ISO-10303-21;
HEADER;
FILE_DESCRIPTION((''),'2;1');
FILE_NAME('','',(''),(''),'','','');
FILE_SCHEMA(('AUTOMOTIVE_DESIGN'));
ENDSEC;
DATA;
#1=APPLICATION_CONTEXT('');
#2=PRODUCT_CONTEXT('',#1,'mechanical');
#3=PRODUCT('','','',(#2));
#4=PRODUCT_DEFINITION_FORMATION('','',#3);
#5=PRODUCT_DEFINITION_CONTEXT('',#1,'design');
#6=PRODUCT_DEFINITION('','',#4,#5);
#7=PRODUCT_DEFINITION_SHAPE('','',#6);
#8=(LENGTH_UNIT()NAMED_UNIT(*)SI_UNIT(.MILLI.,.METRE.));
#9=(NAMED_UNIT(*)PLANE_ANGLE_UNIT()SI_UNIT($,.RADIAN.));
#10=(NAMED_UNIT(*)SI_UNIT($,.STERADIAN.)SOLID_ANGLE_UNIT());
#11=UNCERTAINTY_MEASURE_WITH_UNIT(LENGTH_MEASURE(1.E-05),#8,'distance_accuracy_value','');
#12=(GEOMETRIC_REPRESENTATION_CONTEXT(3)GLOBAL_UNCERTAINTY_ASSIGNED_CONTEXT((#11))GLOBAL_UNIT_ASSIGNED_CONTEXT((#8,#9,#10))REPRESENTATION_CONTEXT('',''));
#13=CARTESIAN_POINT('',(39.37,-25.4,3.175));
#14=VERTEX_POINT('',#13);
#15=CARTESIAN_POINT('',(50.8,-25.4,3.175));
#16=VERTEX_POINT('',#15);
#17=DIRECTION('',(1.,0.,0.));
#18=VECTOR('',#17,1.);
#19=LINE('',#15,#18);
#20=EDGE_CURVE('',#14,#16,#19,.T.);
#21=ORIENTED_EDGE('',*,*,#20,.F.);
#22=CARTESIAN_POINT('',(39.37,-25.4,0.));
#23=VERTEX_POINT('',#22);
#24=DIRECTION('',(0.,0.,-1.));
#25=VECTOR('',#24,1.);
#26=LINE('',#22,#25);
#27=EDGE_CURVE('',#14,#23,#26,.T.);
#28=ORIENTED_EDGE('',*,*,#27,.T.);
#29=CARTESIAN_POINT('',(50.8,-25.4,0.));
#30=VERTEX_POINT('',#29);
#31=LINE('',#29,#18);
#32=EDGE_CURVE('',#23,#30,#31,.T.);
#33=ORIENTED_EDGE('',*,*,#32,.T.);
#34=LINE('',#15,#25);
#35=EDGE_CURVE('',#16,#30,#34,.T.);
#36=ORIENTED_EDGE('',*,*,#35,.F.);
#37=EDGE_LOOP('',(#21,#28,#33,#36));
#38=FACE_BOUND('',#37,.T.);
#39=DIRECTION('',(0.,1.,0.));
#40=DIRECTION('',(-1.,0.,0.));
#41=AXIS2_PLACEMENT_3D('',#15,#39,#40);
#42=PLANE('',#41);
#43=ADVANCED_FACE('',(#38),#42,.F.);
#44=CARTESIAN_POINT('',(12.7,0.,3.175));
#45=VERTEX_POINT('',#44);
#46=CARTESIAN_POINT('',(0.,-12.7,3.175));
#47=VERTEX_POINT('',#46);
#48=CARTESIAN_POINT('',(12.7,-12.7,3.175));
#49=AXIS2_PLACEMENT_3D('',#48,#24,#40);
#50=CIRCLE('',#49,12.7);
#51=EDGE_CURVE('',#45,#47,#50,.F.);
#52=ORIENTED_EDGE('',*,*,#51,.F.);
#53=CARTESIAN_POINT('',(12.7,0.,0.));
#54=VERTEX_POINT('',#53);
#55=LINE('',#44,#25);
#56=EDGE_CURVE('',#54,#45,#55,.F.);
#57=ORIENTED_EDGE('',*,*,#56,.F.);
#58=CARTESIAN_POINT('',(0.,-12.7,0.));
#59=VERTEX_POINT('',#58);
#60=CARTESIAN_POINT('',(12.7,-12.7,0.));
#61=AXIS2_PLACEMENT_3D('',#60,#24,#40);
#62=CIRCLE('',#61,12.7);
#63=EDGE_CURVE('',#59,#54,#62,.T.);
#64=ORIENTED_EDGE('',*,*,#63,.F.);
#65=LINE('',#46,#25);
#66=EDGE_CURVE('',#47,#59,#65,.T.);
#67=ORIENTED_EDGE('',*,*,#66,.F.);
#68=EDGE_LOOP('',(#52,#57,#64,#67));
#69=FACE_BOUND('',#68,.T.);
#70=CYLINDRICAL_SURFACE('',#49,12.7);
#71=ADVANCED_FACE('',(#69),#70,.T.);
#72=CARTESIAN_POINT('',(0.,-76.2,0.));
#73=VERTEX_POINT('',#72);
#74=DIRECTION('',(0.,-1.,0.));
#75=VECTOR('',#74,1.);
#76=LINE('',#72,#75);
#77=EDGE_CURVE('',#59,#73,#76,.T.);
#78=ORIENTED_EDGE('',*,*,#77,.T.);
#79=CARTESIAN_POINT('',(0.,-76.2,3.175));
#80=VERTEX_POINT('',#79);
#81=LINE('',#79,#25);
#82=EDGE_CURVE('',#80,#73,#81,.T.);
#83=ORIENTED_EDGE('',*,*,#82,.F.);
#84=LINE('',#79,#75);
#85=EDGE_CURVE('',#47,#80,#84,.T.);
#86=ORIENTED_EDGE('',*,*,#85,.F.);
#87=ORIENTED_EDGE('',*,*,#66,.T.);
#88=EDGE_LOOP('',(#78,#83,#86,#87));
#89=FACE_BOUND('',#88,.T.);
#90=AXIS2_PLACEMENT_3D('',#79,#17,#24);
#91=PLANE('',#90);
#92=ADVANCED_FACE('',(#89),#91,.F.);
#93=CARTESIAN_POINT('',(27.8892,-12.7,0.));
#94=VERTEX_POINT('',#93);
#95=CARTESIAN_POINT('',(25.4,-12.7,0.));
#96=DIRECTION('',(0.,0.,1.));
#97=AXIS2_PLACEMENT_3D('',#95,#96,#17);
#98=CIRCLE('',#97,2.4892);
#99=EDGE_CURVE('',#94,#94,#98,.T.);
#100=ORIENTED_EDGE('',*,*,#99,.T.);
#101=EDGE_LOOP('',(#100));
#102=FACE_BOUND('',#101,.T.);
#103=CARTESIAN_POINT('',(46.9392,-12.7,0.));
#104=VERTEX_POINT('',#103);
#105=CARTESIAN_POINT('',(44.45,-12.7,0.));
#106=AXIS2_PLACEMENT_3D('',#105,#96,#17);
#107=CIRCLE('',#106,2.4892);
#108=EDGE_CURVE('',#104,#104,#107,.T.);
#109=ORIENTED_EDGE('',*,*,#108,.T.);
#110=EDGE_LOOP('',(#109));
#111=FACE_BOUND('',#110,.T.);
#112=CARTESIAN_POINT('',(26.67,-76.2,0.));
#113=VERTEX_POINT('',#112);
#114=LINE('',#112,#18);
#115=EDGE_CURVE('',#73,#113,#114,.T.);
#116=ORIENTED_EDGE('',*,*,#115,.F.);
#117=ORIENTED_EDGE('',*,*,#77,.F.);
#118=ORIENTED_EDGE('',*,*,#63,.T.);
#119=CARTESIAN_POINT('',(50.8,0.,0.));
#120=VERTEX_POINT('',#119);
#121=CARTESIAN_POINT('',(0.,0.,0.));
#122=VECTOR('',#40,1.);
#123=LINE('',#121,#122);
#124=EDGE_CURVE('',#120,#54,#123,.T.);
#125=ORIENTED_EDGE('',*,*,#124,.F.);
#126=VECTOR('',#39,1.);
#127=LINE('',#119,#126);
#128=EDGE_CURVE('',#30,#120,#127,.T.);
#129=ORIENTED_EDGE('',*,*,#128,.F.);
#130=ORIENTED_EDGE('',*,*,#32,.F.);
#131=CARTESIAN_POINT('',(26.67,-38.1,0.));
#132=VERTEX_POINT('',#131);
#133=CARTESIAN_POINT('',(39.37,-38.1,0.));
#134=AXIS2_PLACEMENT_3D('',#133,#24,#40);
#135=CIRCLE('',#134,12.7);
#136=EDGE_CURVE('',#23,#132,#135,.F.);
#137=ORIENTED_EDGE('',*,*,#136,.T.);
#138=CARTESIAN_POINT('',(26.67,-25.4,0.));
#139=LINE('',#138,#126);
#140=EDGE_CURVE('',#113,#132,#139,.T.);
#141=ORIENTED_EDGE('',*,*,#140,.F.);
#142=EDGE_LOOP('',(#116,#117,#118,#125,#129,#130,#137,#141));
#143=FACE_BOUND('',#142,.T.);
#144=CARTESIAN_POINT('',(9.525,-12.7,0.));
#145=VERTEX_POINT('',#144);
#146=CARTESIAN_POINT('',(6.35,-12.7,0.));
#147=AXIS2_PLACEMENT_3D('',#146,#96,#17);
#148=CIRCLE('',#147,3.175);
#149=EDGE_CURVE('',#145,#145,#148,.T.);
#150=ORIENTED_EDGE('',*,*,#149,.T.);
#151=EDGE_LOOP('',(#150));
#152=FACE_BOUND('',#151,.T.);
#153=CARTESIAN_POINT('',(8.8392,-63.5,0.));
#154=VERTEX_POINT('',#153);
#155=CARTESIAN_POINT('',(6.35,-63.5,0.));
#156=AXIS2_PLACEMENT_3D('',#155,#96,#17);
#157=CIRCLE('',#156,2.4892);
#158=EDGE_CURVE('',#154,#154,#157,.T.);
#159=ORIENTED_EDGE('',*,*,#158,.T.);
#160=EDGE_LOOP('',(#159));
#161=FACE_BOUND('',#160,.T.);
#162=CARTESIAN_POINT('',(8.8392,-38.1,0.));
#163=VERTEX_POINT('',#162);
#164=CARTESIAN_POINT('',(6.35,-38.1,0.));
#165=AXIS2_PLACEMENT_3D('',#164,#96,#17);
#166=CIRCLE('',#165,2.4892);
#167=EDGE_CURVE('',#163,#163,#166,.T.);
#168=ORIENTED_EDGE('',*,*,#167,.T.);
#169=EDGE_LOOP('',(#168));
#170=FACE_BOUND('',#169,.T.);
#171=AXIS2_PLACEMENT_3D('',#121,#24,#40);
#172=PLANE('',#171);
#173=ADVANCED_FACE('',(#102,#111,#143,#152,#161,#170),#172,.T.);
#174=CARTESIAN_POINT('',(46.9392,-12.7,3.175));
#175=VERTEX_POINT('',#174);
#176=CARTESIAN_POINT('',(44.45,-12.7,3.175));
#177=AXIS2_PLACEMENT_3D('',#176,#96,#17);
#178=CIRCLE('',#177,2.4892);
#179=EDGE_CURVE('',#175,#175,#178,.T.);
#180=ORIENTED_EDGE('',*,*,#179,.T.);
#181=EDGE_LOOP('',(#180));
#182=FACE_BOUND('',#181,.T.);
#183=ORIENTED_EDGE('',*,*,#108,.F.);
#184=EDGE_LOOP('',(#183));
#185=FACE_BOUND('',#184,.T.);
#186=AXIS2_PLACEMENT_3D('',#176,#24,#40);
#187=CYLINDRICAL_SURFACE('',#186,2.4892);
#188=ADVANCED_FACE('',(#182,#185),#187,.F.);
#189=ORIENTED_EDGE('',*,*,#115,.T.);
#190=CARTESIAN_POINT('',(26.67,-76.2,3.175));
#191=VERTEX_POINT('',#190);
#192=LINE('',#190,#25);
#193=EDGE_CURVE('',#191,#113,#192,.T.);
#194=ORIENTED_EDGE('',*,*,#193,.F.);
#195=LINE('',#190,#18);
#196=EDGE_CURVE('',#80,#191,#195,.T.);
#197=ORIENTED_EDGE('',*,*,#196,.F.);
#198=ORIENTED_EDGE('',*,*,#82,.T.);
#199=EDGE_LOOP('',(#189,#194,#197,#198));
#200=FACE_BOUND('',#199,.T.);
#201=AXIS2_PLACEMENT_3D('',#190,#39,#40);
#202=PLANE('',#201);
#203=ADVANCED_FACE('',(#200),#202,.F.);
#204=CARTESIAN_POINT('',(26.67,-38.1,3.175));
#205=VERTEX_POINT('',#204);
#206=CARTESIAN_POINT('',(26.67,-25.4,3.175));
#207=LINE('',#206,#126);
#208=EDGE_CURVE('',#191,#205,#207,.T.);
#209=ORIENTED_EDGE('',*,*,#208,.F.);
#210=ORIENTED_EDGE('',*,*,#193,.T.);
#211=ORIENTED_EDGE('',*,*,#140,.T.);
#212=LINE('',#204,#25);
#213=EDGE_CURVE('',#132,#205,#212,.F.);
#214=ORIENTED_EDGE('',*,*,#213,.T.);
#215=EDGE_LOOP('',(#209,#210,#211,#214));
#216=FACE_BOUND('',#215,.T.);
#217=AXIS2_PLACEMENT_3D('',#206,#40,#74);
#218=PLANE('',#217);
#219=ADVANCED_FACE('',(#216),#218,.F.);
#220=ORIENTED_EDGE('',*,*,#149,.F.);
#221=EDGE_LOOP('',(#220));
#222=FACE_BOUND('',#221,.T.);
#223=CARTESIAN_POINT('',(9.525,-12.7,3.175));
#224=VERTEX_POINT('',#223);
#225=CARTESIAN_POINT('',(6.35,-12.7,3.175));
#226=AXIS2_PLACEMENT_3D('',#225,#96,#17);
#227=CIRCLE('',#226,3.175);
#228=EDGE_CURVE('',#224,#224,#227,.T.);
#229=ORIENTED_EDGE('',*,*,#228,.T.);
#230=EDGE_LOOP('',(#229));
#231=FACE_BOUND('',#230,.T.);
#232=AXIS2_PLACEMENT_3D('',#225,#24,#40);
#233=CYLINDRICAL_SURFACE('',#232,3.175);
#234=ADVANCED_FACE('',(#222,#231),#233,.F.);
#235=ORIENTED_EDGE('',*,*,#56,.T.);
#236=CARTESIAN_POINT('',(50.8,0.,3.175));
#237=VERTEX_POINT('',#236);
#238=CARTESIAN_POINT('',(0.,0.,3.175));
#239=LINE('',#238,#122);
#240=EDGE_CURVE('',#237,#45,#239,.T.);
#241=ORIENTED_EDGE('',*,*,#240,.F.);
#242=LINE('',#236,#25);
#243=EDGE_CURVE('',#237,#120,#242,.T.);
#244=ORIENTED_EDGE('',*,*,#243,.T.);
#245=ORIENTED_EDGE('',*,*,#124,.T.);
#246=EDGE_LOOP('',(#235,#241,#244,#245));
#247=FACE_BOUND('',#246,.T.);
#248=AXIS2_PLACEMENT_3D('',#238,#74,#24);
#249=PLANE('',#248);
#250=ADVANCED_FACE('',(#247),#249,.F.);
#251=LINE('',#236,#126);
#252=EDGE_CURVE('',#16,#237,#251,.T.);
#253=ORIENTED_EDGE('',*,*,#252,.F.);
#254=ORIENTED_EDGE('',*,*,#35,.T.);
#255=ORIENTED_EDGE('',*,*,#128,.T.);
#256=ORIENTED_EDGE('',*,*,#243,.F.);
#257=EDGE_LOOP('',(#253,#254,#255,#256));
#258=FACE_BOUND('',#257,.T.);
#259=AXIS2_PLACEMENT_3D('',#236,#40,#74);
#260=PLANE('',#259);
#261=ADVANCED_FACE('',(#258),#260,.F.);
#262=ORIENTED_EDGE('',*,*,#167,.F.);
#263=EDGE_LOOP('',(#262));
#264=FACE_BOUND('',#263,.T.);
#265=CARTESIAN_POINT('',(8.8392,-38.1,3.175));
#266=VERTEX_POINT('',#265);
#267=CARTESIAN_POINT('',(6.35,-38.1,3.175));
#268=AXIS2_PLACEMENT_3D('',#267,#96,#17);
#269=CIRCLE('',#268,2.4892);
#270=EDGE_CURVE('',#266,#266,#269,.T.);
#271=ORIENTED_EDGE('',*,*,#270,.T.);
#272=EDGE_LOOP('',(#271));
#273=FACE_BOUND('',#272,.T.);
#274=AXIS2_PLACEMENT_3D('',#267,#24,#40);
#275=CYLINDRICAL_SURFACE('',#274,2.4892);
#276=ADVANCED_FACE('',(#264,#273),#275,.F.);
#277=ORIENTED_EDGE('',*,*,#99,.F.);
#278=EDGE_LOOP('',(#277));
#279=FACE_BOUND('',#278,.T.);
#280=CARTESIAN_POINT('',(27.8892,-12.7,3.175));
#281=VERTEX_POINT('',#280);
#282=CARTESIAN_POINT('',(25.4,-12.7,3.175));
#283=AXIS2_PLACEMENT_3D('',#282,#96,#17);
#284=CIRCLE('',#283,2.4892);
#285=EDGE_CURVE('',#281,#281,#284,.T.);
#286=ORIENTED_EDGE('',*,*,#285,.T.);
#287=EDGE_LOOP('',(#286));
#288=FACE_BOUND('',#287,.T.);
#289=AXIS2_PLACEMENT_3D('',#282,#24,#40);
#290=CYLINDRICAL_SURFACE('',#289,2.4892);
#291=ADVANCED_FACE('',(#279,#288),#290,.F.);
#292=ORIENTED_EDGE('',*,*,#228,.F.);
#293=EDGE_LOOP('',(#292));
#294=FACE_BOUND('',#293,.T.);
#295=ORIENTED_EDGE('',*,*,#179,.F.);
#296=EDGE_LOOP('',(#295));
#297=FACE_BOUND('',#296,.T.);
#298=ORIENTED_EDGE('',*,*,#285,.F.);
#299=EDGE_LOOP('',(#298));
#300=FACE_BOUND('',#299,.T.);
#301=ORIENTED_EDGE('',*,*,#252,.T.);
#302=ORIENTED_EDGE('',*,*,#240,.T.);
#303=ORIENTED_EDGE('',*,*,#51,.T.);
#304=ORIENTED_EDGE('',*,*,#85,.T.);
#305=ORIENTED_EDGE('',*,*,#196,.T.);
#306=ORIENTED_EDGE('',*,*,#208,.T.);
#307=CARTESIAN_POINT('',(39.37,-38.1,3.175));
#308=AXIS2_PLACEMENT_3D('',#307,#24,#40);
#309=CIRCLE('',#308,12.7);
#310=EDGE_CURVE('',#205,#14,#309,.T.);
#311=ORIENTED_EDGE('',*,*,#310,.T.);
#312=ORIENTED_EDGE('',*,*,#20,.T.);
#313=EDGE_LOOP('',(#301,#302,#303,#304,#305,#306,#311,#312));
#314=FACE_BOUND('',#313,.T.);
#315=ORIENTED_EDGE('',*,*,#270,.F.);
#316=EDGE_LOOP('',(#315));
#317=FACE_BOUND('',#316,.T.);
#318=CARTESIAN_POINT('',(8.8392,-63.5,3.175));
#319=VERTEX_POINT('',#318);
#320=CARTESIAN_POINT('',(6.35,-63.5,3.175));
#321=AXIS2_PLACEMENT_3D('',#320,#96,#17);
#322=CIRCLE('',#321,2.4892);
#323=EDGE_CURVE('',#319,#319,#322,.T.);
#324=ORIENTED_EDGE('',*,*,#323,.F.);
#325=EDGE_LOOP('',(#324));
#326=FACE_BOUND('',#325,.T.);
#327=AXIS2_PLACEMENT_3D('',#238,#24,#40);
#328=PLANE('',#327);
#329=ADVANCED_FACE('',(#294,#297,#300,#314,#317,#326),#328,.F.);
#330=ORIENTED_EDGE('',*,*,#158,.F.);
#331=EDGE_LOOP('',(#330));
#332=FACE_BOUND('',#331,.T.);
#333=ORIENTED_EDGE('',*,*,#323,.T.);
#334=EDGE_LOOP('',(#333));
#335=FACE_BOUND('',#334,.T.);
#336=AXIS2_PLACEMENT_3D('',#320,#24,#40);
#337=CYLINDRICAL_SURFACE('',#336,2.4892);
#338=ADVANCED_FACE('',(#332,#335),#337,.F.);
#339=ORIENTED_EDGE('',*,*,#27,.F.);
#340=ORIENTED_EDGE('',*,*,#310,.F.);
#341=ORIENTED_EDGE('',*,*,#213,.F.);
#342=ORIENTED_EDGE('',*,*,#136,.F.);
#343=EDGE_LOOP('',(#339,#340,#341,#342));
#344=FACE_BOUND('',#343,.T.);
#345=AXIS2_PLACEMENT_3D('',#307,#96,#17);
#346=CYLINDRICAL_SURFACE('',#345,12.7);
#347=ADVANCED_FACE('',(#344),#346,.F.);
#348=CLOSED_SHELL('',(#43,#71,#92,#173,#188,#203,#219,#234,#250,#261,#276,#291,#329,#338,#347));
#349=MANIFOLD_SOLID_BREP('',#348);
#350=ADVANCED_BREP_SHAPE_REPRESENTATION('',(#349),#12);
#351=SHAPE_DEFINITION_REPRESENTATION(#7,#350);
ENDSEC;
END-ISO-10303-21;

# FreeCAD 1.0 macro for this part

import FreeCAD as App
import Part
import Sketcher

V = App.Vector
Q = App.Units.Quantity


def edges_at(feature, points):
    """Names of the edges that pass closest to the given points."""
    edges = feature.Shape.Edges
    near = lambda p: min(range(len(edges)), key=lambda i: edges[i].distToShape(Part.Vertex(*p))[0])
    return sorted({f"Edge{near(p) + 1}" for p in points})

doc = App.newDocument("Part")
body = doc.addObject("PartDesign::Body", "Body")

# Sketch on XY plane
sketch1 = body.newObject("Sketcher::SketchObject", "Sketch")
sketch1.AttachmentSupport = (doc.getObject("XY_Plane"), [""])
sketch1.MapMode = "FlatFace"
sketch1.addGeometry([
    Part.LineSegment(V(50.8, 0, 0), V(0, 0, 0)),  # 0
    Part.LineSegment(V(0, 0, 0), V(0, -76.2, 0)),  # 1
    Part.LineSegment(V(0, -76.2, 0), V(26.67, -76.2, 0)),  # 2
    Part.LineSegment(V(26.67, -76.2, 0), V(26.67, -25.4, 0)),  # 3
    Part.LineSegment(V(26.67, -25.4, 0), V(50.8, -25.4, 0)),  # 4
    Part.LineSegment(V(50.8, -25.4, 0), V(50.8, 0, 0)),  # 5
    Part.Circle(V(6.35, -63.5, 0), V(0, 0, 1), 2.4892),  # 6
    Part.Circle(V(6.35, -38.1, 0), V(0, 0, 1), 2.4892),  # 7
    Part.Circle(V(44.45, -12.7, 0), V(0, 0, 1), 2.4892),  # 8
    Part.Circle(V(25.4, -12.7, 0), V(0, 0, 1), 2.4892),  # 9
    Part.Circle(V(6.35, -12.7, 0), V(0, 0, 1), 3.175),  # 10
], False)
sketch1.addConstraint([
    Sketcher.Constraint("Coincident", 0, 2, 1, 1),
    Sketcher.Constraint("Coincident", 1, 2, 2, 1),
    Sketcher.Constraint("Coincident", 2, 2, 3, 1),
    Sketcher.Constraint("Coincident", 3, 2, 4, 1),
    Sketcher.Constraint("Coincident", 4, 2, 5, 1),
    Sketcher.Constraint("Coincident", 5, 2, 0, 1),
    Sketcher.Constraint("Horizontal", 0),
    Sketcher.Constraint("Vertical", 1),
    Sketcher.Constraint("Horizontal", 2),
    Sketcher.Constraint("Vertical", 3),
    Sketcher.Constraint("Horizontal", 4),
    Sketcher.Constraint("Vertical", 5),
    Sketcher.Constraint("Coincident", 0, 2, -1, 1),
    Sketcher.Constraint("Equal", 6, 7),
    Sketcher.Constraint("Equal", 7, 8),
    Sketcher.Constraint("Equal", 8, 9),
    Sketcher.Constraint("Horizontal", 8, 3, 9, 3),
    Sketcher.Constraint("Horizontal", 9, 3, 10, 3),
    Sketcher.Constraint("Vertical", 6, 3, 7, 3),
    Sketcher.Constraint("Vertical", 7, 3, 10, 3),
    Sketcher.Constraint("Equal", 0, 3),
    Sketcher.Constraint("Diameter", 10, Q("0.25 in")),
    Sketcher.Constraint("DistanceX", 0, 2, 0, 1, Q("2 in")),
    Sketcher.Constraint("DistanceY", 1, 2, 1, 1, Q("3 in")),
    Sketcher.Constraint("Diameter", 6, Q("0.196 in")),
    Sketcher.Constraint("DistanceX", -1, 1, 9, 3, Q("1 in")),
    Sketcher.Constraint("DistanceY", 6, 3, 7, 3, Q("1 in")),
    Sketcher.Constraint("DistanceY", 7, 3, 8, 3, Q("1 in")),
    Sketcher.Constraint("DistanceX", 2, 1, 2, 2, Q("1.05 in")),
    Sketcher.Constraint("DistanceY", 6, 3, -1, 1, Q("2.5 in")),
    Sketcher.Constraint("DistanceX", 7, 3, 8, 3, Q("1.5 in")),
    Sketcher.Constraint("DistanceX", 6, 3, 2, 2, Q("0.8 in")),
])
pad1 = body.newObject("PartDesign::Pad", "Pad")
pad1.Profile = sketch1
pad1.Length = Q("0.125 in")
doc.recompute()

fillet = body.newObject("PartDesign::Fillet", "Fillet")
fillet.Base = (pad1, edges_at(pad1, [(0, 0, 1.587), (26.67, -25.4, 1.587)]))
fillet.Radius = Q("0.5 in")

doc.recompute()
